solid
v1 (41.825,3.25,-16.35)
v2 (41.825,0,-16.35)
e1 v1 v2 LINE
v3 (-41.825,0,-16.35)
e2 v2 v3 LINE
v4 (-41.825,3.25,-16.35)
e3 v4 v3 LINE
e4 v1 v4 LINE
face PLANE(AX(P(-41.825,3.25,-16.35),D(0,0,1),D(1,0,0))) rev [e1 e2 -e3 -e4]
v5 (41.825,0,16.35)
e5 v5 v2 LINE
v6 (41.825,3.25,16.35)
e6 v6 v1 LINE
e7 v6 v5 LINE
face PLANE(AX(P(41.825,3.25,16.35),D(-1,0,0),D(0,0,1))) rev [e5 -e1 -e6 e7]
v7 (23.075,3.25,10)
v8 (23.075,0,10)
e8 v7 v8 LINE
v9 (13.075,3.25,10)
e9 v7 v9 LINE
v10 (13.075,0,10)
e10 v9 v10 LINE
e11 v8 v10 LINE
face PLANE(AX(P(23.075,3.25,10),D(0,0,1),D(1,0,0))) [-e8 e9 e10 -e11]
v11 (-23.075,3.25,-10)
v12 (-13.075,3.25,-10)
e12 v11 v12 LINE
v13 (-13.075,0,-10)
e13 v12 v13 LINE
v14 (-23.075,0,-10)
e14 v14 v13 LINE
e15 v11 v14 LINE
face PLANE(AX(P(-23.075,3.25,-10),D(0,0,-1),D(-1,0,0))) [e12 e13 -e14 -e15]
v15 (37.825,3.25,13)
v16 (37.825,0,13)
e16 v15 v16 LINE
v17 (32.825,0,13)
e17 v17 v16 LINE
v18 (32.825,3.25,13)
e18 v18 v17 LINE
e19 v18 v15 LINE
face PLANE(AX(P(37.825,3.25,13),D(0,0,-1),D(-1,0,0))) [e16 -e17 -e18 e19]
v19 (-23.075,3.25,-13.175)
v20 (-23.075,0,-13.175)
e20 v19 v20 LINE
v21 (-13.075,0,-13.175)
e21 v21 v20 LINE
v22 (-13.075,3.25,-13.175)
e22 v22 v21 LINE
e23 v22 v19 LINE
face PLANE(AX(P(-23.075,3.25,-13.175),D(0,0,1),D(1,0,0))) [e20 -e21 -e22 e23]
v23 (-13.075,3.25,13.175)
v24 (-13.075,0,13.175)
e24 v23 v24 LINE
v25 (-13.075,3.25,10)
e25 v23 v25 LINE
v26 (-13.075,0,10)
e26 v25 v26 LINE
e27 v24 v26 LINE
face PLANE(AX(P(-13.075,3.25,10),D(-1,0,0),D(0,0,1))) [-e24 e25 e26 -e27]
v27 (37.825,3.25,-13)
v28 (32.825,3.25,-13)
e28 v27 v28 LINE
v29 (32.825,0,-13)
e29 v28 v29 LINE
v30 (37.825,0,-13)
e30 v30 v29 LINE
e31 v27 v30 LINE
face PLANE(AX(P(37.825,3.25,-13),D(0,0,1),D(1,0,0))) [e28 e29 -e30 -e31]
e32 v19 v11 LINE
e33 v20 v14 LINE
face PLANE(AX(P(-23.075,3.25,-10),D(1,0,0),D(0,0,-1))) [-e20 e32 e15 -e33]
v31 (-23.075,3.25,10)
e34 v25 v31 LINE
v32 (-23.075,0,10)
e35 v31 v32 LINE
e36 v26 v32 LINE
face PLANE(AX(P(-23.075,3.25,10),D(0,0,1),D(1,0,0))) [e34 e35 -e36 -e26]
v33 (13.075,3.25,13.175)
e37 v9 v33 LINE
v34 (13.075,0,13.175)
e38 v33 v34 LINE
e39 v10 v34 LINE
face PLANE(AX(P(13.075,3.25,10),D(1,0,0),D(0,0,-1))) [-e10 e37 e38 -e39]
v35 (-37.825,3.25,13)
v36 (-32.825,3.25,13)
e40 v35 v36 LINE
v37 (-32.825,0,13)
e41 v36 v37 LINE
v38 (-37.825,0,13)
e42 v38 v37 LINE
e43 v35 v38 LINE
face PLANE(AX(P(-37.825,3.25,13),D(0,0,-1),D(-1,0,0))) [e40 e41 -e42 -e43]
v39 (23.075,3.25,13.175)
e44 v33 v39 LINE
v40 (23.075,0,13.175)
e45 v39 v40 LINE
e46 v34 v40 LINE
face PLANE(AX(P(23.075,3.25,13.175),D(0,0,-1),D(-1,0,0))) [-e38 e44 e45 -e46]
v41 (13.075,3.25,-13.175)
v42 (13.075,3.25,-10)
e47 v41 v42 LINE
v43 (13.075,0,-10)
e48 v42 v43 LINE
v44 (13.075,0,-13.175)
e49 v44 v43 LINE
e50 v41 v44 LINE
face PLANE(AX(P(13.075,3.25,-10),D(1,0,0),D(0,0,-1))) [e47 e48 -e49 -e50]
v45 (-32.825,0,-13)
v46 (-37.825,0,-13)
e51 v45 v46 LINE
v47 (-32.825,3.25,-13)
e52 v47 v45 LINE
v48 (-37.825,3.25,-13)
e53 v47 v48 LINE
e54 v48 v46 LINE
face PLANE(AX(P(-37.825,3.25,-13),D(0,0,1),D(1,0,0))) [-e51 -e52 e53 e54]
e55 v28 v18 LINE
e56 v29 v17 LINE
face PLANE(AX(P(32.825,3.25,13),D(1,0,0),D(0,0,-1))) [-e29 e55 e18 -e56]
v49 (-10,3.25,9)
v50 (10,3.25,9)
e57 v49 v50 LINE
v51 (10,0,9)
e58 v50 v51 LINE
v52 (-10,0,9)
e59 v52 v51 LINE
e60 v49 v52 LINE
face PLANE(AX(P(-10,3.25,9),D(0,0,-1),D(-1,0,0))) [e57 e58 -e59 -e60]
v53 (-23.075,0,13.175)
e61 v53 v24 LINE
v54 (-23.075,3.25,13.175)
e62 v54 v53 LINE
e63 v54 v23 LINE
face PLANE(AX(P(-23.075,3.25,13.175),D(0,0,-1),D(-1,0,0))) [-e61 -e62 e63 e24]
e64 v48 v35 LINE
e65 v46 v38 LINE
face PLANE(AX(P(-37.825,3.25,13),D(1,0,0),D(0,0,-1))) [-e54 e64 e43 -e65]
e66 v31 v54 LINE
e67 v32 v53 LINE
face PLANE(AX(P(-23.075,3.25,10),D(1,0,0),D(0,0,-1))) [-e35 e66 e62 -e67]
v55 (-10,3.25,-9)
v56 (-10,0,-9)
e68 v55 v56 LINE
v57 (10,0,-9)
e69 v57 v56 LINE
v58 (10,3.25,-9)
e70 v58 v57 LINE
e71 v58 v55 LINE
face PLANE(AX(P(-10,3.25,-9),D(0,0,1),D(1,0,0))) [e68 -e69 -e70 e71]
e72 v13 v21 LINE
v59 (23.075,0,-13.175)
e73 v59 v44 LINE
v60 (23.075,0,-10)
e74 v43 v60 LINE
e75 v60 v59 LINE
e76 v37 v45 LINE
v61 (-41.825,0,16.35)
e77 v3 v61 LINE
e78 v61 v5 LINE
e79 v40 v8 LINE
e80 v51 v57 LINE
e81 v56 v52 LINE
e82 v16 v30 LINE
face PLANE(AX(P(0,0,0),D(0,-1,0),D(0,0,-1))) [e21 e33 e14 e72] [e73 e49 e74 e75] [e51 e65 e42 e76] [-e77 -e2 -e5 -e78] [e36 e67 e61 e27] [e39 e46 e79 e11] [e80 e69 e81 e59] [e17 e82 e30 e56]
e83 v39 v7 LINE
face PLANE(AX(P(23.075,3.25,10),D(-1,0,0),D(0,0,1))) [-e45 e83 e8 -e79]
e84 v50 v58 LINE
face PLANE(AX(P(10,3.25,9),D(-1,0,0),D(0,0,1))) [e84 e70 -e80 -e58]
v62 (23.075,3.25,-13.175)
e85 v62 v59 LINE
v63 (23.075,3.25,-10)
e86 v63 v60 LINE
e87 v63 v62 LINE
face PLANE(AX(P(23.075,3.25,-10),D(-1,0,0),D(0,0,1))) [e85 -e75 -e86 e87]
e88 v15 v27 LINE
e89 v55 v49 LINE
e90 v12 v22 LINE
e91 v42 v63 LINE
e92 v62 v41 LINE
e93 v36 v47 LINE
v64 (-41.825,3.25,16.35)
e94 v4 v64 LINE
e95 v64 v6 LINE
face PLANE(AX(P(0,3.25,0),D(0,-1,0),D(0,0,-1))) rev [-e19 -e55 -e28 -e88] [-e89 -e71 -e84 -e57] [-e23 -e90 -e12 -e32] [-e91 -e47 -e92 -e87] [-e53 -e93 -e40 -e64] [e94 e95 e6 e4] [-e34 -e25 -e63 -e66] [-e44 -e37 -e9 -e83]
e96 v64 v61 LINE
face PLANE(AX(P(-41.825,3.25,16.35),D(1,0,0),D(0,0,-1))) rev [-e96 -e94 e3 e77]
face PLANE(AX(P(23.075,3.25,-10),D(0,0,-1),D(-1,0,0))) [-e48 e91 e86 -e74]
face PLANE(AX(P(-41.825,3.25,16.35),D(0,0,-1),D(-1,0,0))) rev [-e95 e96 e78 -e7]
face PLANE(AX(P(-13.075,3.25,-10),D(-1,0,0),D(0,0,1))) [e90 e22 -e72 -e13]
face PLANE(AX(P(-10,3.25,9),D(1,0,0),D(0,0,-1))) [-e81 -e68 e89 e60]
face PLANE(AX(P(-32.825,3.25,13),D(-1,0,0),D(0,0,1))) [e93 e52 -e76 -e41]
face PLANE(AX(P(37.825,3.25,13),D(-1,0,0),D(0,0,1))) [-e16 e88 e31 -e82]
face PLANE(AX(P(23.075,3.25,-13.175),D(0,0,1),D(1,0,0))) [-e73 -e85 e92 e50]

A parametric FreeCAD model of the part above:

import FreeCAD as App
import Part
import Sketcher
from FreeCAD import Vector

doc = App.newDocument("Part")
params = doc.addObject("Spreadsheet::Sheet", "Params")
for row, (alias, value) in enumerate([
    ("sketch1_width", "10 mm"),
    ("sketch1_width2", "5 mm"),
    ("sketch1_width3", "20 mm"),
    ("sketch1_height", "26 mm"),
    ("sketch1_height2", "18 mm"),
    ("pad1_length", "3.25 mm"),
], start=1):
    params.set(f"A{row}", alias)
    params.set(f"B{row}", "=" + value)
    params.setAlias(f"B{row}", alias)

body = doc.addObject("PartDesign::Body", "Body")

# Sketch on XZ plane
sketch1 = body.newObject("Sketcher::SketchObject", "Sketch")
sketch1.AttachmentSupport = (doc.getObject("XZ_Plane"), [""])
sketch1.MapMode = "FlatFace"
sketch1.addGeometry([
    Part.LineSegment(Vector(-41.8, -16.4, 0), Vector(-41.8, 16.4, 0)),  # 0
    Part.LineSegment(Vector(-41.8, 16.4, 0), Vector(41.8, 16.4, 0)),  # 1
    Part.LineSegment(Vector(41.8, 16.4, 0), Vector(41.8, -16.4, 0)),  # 2
    Part.LineSegment(Vector(41.8, -16.4, 0), Vector(-41.8, -16.4, 0)),  # 3
    Part.LineSegment(Vector(-13.1, 13.2, 0), Vector(-23.1, 13.2, 0)),  # 4
    Part.LineSegment(Vector(-23.1, 13.2, 0), Vector(-23.1, 10, 0)),  # 5
    Part.LineSegment(Vector(-23.1, 10, 0), Vector(-13.1, 10, 0)),  # 6
    Part.LineSegment(Vector(-13.1, 10, 0), Vector(-13.1, 13.2, 0)),  # 7
    Part.LineSegment(Vector(23.1, 13.2, 0), Vector(13.1, 13.2, 0)),  # 8
    Part.LineSegment(Vector(13.1, 13.2, 0), Vector(13.1, 10, 0)),  # 9
    Part.LineSegment(Vector(13.1, 10, 0), Vector(23.1, 10, 0)),  # 10
    Part.LineSegment(Vector(23.1, 10, 0), Vector(23.1, 13.2, 0)),  # 11
    Part.LineSegment(Vector(-32.8, 13, 0), Vector(-37.8, 13, 0)),  # 12
    Part.LineSegment(Vector(-37.8, 13, 0), Vector(-37.8, -13, 0)),  # 13
    Part.LineSegment(Vector(-37.8, -13, 0), Vector(-32.8, -13, 0)),  # 14
    Part.LineSegment(Vector(-32.8, -13, 0), Vector(-32.8, 13, 0)),  # 15
    Part.LineSegment(Vector(-13.1, -10, 0), Vector(-23.1, -10, 0)),  # 16
    Part.LineSegment(Vector(-23.1, -10, 0), Vector(-23.1, -13.2, 0)),  # 17
    Part.LineSegment(Vector(-23.1, -13.2, 0), Vector(-13.1, -13.2, 0)),  # 18
    Part.LineSegment(Vector(-13.1, -13.2, 0), Vector(-13.1, -10, 0)),  # 19
    Part.LineSegment(Vector(10, 9, 0), Vector(-10, 9, 0)),  # 20
    Part.LineSegment(Vector(-10, 9, 0), Vector(-10, -9, 0)),  # 21
    Part.LineSegment(Vector(-10, -9, 0), Vector(10, -9, 0)),  # 22
    Part.LineSegment(Vector(10, -9, 0), Vector(10, 9, 0)),  # 23
    Part.LineSegment(Vector(37.8, 13, 0), Vector(32.8, 13, 0)),  # 24
    Part.LineSegment(Vector(32.8, 13, 0), Vector(32.8, -13, 0)),  # 25
    Part.LineSegment(Vector(32.8, -13, 0), Vector(37.8, -13, 0)),  # 26
    Part.LineSegment(Vector(37.8, -13, 0), Vector(37.8, 13, 0)),  # 27
    Part.LineSegment(Vector(23.1, -10, 0), Vector(13.1, -10, 0)),  # 28
    Part.LineSegment(Vector(13.1, -10, 0), Vector(13.1, -13.2, 0)),  # 29
    Part.LineSegment(Vector(13.1, -13.2, 0), Vector(23.1, -13.2, 0)),  # 30
    Part.LineSegment(Vector(23.1, -13.2, 0), Vector(23.1, -10, 0)),  # 31
], False)
sketch1.addConstraint([
    Sketcher.Constraint("Coincident", 0, 2, 1, 1),
    Sketcher.Constraint("Coincident", 1, 2, 2, 1),
    Sketcher.Constraint("Coincident", 2, 2, 3, 1),
    Sketcher.Constraint("Coincident", 3, 2, 0, 1),
    Sketcher.Constraint("Coincident", 4, 2, 5, 1),
    Sketcher.Constraint("Coincident", 5, 2, 6, 1),
    Sketcher.Constraint("Coincident", 6, 2, 7, 1),
    Sketcher.Constraint("Coincident", 7, 2, 4, 1),
    Sketcher.Constraint("Coincident", 8, 2, 9, 1),
    Sketcher.Constraint("Coincident", 9, 2, 10, 1),
    Sketcher.Constraint("Coincident", 10, 2, 11, 1),
    Sketcher.Constraint("Coincident", 11, 2, 8, 1),
    Sketcher.Constraint("Coincident", 12, 2, 13, 1),
    Sketcher.Constraint("Coincident", 13, 2, 14, 1),
    Sketcher.Constraint("Coincident", 14, 2, 15, 1),
    Sketcher.Constraint("Coincident", 15, 2, 12, 1),
    Sketcher.Constraint("Coincident", 16, 2, 17, 1),
    Sketcher.Constraint("Coincident", 17, 2, 18, 1),
    Sketcher.Constraint("Coincident", 18, 2, 19, 1),
    Sketcher.Constraint("Coincident", 19, 2, 16, 1),
    Sketcher.Constraint("Coincident", 20, 2, 21, 1),
    Sketcher.Constraint("Coincident", 21, 2, 22, 1),
    Sketcher.Constraint("Coincident", 22, 2, 23, 1),
    Sketcher.Constraint("Coincident", 23, 2, 20, 1),
    Sketcher.Constraint("Coincident", 24, 2, 25, 1),
    Sketcher.Constraint("Coincident", 25, 2, 26, 1),
    Sketcher.Constraint("Coincident", 26, 2, 27, 1),
    Sketcher.Constraint("Coincident", 27, 2, 24, 1),
    Sketcher.Constraint("Coincident", 28, 2, 29, 1),
    Sketcher.Constraint("Coincident", 29, 2, 30, 1),
    Sketcher.Constraint("Coincident", 30, 2, 31, 1),
    Sketcher.Constraint("Coincident", 31, 2, 28, 1),
    Sketcher.Constraint("Vertical", 0),
    Sketcher.Constraint("Horizontal", 1),
    Sketcher.Constraint("Vertical", 2),
    Sketcher.Constraint("Horizontal", 3),
    Sketcher.Constraint("Horizontal", 4),
    Sketcher.Constraint("Vertical", 5),
    Sketcher.Constraint("Horizontal", 6),
    Sketcher.Constraint("Vertical", 7),
    Sketcher.Constraint("Horizontal", 8),
    Sketcher.Constraint("Vertical", 9),
    Sketcher.Constraint("Horizontal", 10),
    Sketcher.Constraint("Vertical", 11),
    Sketcher.Constraint("Horizontal", 12),
    Sketcher.Constraint("Vertical", 13),
    Sketcher.Constraint("Horizontal", 14),
    Sketcher.Constraint("Vertical", 15),
    Sketcher.Constraint("Horizontal", 16),
    Sketcher.Constraint("Vertical", 17),
    Sketcher.Constraint("Horizontal", 18),
    Sketcher.Constraint("Vertical", 19),
    Sketcher.Constraint("Horizontal", 20),
    Sketcher.Constraint("Vertical", 21),
    Sketcher.Constraint("Horizontal", 22),
    Sketcher.Constraint("Vertical", 23),
    Sketcher.Constraint("Horizontal", 24),
    Sketcher.Constraint("Vertical", 25),
    Sketcher.Constraint("Horizontal", 26),
    Sketcher.Constraint("Vertical", 27),
    Sketcher.Constraint("Horizontal", 28),
    Sketcher.Constraint("Vertical", 29),
    Sketcher.Constraint("Horizontal", 30),
    Sketcher.Constraint("Vertical", 31),
    Sketcher.Constraint("Symmetric", 0, 2, 2, 2, -1, 1),
    Sketcher.Constraint("Symmetric", 10, 2, 16, 2, -1, 1),
    Sketcher.Constraint("Symmetric", 8, 2, 18, 2, -1, 1),
    Sketcher.Constraint("Symmetric", 20, 2, 22, 2, -1, 1),
    Sketcher.Constraint("Symmetric", 14, 2, 24, 2, -1, 1),
    Sketcher.Constraint("Symmetric", 12, 2, 26, 2, -1, 1),
    Sketcher.Constraint("Symmetric", 6, 2, 28, 2, -1, 1),
    Sketcher.Constraint("Symmetric", 4, 2, 30, 2, -1, 1),
    Sketcher.Constraint("Symmetric", 7, 2, 8, 2, -2),
    Sketcher.Constraint("Symmetric", 5, 2, 10, 2, -2),
    Sketcher.Constraint("Horizontal", 15, 2, 24, 2),
    Sketcher.Constraint("DistanceX", 4, 2, 4, 1, 10.0),
    Sketcher.Constraint("DistanceX", 12, 2, 12, 1, 5.0),
    Sketcher.Constraint("DistanceX", 20, 2, 20, 1, 20.0),
    Sketcher.Constraint("DistanceY", 13, 2, 13, 1, 26.0),
    Sketcher.Constraint("DistanceY", 21, 2, 21, 1, 18.0),
    Sketcher.Constraint("DistanceY", 0, 1, 0, 2, 32.7),
    Sketcher.Constraint("DistanceY", -1, 1, 5, 2, 10.0),
    Sketcher.Constraint("DistanceX", 0, 2, 12, 2, 4.0),
    Sketcher.Constraint("DistanceX", 1, 1, 1, 2, 83.65),
    Sketcher.Constraint("DistanceX", 4, 2, 1, 2, 64.9),
    Sketcher.Constraint("DistanceY", 5, 2, 5, 1, 3.175),
])
sketch1.setExpression("Constraints[75]", "Params.sketch1_width")
sketch1.setExpression("Constraints[76]", "Params.sketch1_width2")
sketch1.setExpression("Constraints[77]", "Params.sketch1_width3")
sketch1.setExpression("Constraints[78]", "Params.sketch1_height")
sketch1.setExpression("Constraints[79]", "Params.sketch1_height2")
pad1 = body.newObject("PartDesign::Pad", "Pad")
pad1.Profile = sketch1
pad1.setExpression("Length", "Params.pad1_length")
pad1.Reversed = True

doc.recompute()
